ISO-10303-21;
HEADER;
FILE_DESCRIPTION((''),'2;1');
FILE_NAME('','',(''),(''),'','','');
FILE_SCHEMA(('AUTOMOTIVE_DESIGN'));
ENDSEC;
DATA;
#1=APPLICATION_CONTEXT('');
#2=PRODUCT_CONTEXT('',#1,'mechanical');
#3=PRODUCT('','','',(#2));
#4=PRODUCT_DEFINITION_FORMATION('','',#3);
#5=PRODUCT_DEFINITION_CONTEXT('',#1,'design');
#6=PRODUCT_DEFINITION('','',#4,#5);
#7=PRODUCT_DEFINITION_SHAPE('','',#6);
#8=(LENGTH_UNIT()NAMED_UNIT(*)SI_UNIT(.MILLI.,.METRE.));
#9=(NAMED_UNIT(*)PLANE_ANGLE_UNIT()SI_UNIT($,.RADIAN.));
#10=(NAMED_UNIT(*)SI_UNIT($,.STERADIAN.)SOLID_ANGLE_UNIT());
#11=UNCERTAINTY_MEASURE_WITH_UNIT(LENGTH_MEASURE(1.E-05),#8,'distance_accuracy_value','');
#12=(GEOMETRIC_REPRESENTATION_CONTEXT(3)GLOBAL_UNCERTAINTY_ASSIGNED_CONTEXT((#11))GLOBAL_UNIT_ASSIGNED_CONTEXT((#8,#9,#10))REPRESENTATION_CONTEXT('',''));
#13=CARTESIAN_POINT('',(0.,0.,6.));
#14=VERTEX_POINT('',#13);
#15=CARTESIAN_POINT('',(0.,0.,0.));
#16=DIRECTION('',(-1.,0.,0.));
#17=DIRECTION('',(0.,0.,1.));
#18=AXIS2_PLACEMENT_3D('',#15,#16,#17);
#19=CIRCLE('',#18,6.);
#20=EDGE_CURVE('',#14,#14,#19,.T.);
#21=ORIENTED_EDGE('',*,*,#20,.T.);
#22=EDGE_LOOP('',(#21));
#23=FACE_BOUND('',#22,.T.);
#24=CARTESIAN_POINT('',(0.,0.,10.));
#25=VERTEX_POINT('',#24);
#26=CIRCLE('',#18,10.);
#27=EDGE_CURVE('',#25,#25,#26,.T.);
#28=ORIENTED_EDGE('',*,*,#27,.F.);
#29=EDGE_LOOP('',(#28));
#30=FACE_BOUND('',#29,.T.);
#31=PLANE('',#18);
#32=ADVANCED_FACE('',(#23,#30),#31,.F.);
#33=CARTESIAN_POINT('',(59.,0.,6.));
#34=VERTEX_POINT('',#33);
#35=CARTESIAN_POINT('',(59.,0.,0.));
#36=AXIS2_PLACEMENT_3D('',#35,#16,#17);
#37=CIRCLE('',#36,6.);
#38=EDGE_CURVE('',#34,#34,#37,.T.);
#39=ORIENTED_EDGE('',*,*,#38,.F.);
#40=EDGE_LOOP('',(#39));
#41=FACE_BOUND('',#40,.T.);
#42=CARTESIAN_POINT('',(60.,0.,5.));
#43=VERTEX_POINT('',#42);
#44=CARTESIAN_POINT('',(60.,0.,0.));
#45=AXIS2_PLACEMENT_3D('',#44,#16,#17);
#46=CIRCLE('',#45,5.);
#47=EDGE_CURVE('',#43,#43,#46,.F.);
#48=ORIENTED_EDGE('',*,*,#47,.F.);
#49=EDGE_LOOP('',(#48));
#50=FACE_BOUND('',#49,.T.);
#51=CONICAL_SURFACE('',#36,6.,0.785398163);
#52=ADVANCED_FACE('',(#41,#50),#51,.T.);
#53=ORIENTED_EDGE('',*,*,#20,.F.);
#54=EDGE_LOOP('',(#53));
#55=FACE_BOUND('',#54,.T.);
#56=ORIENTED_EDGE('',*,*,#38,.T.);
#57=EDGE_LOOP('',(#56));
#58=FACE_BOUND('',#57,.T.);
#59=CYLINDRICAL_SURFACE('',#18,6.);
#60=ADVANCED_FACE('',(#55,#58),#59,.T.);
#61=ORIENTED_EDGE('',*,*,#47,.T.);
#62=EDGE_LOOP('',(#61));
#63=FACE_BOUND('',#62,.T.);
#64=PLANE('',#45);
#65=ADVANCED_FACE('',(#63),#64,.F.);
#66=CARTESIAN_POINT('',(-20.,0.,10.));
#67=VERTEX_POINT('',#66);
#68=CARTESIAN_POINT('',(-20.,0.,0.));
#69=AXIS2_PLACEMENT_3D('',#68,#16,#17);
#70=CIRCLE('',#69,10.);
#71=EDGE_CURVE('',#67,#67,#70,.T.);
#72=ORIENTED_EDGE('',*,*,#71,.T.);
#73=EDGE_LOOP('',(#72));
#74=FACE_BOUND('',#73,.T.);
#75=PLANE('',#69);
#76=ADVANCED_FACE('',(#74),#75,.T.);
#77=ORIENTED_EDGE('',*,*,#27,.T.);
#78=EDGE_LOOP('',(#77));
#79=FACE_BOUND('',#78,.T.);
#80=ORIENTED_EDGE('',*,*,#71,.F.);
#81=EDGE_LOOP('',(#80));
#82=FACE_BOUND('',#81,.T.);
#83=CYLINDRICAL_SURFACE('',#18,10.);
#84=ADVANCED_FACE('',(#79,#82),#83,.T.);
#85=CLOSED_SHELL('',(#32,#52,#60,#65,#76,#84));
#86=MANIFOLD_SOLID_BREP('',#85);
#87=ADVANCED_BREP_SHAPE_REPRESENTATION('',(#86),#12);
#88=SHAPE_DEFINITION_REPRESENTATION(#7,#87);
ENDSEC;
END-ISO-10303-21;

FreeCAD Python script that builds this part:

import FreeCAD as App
import Part
import Sketcher


def edges_at(feature, points):
    """Names of the edges that pass closest to the given points."""
    edges = feature.Shape.Edges
    near = lambda p: min(range(len(edges)), key=lambda i: edges[i].distToShape(Part.Vertex(*p))[0])
    return sorted({f"Edge{near(p) + 1}" for p in points})

doc = App.newDocument("Part")
body = doc.addObject("PartDesign::Body", "Body")

# Sketch on XY plane
sketch1 = doc.addObject("Sketcher::SketchObject", "Sketch")
body.addObject(sketch1)
sketch1.AttachmentSupport = (doc.XY_Plane, [""])
sketch1.MapMode = "FlatFace"
sketch1.addGeometry([
    Part.LineSegment(App.Vector(60, 0, 0), App.Vector(60, 6, 0)),  # 0
    Part.LineSegment(App.Vector(60, 6, 0), App.Vector(0, 6, 0)),  # 1
    Part.LineSegment(App.Vector(0, 6, 0), App.Vector(0, 10, 0)),  # 2
    Part.LineSegment(App.Vector(0, 10, 0), App.Vector(-20, 10, 0)),  # 3
    Part.LineSegment(App.Vector(-20, 10, 0), App.Vector(-20, 0, 0)),  # 4
    Part.LineSegment(App.Vector(-20, 0, 0), App.Vector(60, 0, 0)),  # 5
], False)
sketch1.addConstraint([
    Sketcher.Constraint("Coincident", 0, 2, 1, 1),
    Sketcher.Constraint("Coincident", 1, 2, 2, 1),
    Sketcher.Constraint("Coincident", 2, 2, 3, 1),
    Sketcher.Constraint("Coincident", 3, 2, 4, 1),
    Sketcher.Constraint("Coincident", 4, 2, 5, 1),
    Sketcher.Constraint("Coincident", 5, 2, 0, 1),
    Sketcher.Constraint("Vertical", 0),
    Sketcher.Constraint("Horizontal", 1),
    Sketcher.Constraint("Vertical", 2),
    Sketcher.Constraint("Horizontal", 3),
    Sketcher.Constraint("Vertical", 4),
    Sketcher.Constraint("Horizontal", 5),
    Sketcher.Constraint("PointOnObject", 1, 2, -2),
    Sketcher.Constraint("PointOnObject", 4, 2, -1),
    Sketcher.Constraint("DistanceX", 1, 2, 1, 1, 60.0),
    Sketcher.Constraint("DistanceX", 3, 2, 3, 1, 20.0),
    Sketcher.Constraint("DistanceY", 0, 1, 0, 2, 6.0),
    Sketcher.Constraint("DistanceY", 2, 1, 2, 2, 4.0),
])
revolution = doc.addObject("PartDesign::Revolution", "Revolution")
body.addObject(revolution)
revolution.Profile = sketch1
revolution.ReferenceAxis = (sketch1, ["H_Axis"])
revolution.Angle = 360
doc.recompute()

chamfer = doc.addObject("PartDesign::Chamfer", "Chamfer")
body.addObject(chamfer)
chamfer.Base = (revolution, edges_at(revolution, [(60, 0, -6)]))
chamfer.Size = 1

doc.recompute()
